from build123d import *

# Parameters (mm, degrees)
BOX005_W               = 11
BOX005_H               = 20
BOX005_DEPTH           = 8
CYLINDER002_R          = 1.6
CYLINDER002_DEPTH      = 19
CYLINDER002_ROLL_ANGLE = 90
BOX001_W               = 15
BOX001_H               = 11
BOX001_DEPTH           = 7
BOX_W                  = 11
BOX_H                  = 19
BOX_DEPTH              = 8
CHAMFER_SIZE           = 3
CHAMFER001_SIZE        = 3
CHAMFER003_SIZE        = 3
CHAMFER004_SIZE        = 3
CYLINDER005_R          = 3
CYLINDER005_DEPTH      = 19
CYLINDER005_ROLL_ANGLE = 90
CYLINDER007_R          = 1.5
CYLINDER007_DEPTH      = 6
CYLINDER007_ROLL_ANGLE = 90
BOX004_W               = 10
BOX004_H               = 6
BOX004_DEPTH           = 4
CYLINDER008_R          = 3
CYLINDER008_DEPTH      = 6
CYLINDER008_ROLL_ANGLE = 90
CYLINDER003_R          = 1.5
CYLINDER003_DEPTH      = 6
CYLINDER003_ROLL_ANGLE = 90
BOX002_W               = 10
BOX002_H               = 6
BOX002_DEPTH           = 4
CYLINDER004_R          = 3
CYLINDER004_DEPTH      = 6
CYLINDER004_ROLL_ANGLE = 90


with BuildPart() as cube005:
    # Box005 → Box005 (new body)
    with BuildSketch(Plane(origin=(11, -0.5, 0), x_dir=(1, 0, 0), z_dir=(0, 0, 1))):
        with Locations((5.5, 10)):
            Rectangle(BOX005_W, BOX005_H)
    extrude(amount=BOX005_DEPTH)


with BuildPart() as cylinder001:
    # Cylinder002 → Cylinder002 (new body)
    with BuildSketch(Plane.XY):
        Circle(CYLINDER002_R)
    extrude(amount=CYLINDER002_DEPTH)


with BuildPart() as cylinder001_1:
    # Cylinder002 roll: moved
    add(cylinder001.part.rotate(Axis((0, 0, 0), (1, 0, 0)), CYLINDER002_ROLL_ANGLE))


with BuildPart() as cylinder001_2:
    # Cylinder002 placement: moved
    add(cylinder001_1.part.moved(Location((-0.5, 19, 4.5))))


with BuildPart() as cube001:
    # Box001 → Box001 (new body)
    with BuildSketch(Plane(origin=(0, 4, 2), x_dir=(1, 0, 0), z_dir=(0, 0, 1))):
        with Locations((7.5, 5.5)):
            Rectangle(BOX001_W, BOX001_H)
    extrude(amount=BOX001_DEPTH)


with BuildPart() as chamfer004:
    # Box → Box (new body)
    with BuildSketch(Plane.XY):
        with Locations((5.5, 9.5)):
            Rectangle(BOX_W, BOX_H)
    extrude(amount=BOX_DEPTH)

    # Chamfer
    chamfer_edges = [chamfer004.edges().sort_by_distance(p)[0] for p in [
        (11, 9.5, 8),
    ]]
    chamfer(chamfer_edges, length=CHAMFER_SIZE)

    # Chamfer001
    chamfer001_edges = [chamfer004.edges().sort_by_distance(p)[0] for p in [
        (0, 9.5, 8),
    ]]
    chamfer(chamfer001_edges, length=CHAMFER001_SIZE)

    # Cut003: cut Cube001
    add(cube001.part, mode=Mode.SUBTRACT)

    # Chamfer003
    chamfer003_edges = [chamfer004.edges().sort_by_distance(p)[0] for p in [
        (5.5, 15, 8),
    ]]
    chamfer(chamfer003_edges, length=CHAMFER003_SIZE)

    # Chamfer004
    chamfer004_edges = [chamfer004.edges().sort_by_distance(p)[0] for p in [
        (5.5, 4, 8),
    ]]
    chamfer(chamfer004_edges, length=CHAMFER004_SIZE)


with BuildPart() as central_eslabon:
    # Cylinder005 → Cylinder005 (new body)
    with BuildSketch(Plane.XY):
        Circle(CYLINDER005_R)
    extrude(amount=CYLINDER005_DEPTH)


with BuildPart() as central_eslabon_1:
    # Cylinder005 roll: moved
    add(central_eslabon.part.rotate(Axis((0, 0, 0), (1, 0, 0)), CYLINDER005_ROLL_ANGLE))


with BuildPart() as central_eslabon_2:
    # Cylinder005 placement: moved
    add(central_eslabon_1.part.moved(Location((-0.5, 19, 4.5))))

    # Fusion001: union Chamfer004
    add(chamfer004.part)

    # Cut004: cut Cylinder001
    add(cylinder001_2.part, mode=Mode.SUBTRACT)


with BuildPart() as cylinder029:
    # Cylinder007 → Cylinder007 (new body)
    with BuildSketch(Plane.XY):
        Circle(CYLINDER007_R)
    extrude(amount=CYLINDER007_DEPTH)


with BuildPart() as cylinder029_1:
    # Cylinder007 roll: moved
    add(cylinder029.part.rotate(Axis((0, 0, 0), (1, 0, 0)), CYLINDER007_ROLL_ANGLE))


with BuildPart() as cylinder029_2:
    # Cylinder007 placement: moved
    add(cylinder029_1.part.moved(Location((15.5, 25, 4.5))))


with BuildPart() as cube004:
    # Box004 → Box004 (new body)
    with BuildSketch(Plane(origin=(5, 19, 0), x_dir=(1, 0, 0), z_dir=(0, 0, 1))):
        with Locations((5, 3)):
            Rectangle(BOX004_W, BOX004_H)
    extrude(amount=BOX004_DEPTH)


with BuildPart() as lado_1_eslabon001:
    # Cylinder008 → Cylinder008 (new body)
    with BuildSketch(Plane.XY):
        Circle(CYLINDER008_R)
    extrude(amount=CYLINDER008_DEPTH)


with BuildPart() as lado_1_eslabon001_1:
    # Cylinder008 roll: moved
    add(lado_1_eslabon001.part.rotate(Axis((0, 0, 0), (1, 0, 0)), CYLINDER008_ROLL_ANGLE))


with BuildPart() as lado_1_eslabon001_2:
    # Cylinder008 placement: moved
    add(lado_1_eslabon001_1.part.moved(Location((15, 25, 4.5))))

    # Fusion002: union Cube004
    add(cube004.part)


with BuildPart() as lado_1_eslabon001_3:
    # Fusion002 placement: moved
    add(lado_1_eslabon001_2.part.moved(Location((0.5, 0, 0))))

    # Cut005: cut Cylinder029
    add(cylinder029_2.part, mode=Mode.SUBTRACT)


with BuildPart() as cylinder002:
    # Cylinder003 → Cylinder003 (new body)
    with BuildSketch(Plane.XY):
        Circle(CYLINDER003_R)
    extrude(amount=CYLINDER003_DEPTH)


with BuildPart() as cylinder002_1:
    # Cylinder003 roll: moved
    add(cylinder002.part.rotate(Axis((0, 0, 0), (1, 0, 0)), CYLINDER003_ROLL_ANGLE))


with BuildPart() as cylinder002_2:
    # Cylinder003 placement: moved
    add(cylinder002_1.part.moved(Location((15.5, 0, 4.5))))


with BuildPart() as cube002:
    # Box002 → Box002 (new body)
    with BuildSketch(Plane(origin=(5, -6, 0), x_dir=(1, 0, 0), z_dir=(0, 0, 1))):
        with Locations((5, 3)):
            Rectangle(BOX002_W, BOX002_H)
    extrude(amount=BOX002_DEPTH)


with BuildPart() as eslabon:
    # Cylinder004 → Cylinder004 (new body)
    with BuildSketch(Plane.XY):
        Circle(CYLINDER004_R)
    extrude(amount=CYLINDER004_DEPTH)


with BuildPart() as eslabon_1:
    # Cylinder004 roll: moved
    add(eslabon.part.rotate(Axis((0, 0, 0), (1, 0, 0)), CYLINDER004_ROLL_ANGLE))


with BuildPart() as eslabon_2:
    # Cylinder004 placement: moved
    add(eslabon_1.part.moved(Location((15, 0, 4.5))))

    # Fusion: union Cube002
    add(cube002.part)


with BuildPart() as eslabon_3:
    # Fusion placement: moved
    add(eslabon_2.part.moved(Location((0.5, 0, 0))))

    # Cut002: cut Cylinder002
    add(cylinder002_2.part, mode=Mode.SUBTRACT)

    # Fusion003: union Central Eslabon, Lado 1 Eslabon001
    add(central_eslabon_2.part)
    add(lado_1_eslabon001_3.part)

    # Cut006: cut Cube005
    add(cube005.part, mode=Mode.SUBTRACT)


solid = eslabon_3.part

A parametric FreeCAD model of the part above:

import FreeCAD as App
import Part
import Sketcher

V = App.Vector


def edges_at(feature, points):
    """Names of the edges that pass closest to the given points."""
    edges = feature.Shape.Edges
    near = lambda p: min(range(len(edges)), key=lambda i: edges[i].distToShape(Part.Vertex(*p))[0])
    return sorted({f"Edge{near(p) + 1}" for p in points})

doc = App.newDocument("Part")
body = doc.addObject("PartDesign::Body", "Body")

# Sketch on XY plane
sketch1 = body.newObject("Sketcher::SketchObject", "Sketch")
sketch1.AttachmentSupport = (doc.getObject("XY_Plane"), [""])
sketch1.MapMode = "FlatFace"
sketch1.addGeometry(Part.LineSegment(V(11, 20, 0), V(11, 0, 0)), False)
sketch1.addGeometry(Part.LineSegment(V(11, 0, 0), V(22, 0, 0)), False)
sketch1.addGeometry(Part.LineSegment(V(22, 0, 0), V(22, 20, 0)), False)
sketch1.addGeometry(Part.LineSegment(V(22, 20, 0), V(11, 20, 0)), False)
sketch1.addConstraint(Sketcher.Constraint("Coincident", 0, 2, 1, 1))
sketch1.addConstraint(Sketcher.Constraint("Coincident", 1, 2, 2, 1))
sketch1.addConstraint(Sketcher.Constraint("Coincident", 2, 2, 3, 1))
sketch1.addConstraint(Sketcher.Constraint("Coincident", 3, 2, 0, 1))
sketch1.addConstraint(Sketcher.Constraint("Vertical", 0))
sketch1.addConstraint(Sketcher.Constraint("Horizontal", 1))
sketch1.addConstraint(Sketcher.Constraint("Vertical", 2))
sketch1.addConstraint(Sketcher.Constraint("Horizontal", 3))
sketch1.addConstraint(Sketcher.Constraint("DistanceX", 1, 1, 1, 2, 11.0))
sketch1.addConstraint(Sketcher.Constraint("DistanceY", 0, 2, 0, 1, 20.0))
sketch1.addConstraint(Sketcher.Constraint("DistanceX", -1, 1, 0, 2, 11.0))
sketch1.addConstraint(Sketcher.Constraint("DistanceY", 0, 2, -1, 1, 0.5))
pad1 = body.newObject("PartDesign::Pad", "Pad")
pad1.Profile = sketch1
pad1.Length = 8
body2 = doc.addObject("PartDesign::Body", "Body001")

# Sketch on XY plane
sketch2 = body2.newObject("Sketcher::SketchObject", "Sketch001")
sketch2.AttachmentSupport = (doc.getObject("XY_Plane001"), [""])
sketch2.MapMode = "FlatFace"
sketch2.addGeometry(Part.Circle(V(0, 0, 0), V(0, 0, 1), 1.6), False)
sketch2.addConstraint(Sketcher.Constraint("Coincident", 0, 3, -1, 1))
sketch2.addConstraint(Sketcher.Constraint("Diameter", 0, 3.2))
pad2 = body2.newObject("PartDesign::Pad", "Pad001")
pad2.Profile = sketch2
pad2.Length = 19
body3 = doc.addObject("PartDesign::Body", "Body002")
doc.recompute()

body2.Placement = App.Placement(V(0, 0, 0), App.Rotation(V(1, 0, 0), 90))
boolean = body3.newObject("PartDesign::Boolean", "Boolean")
boolean.Type = "Fuse"
boolean.addObjects([body2])
body4 = doc.addObject("PartDesign::Body", "Body003")
doc.recompute()

body3.Placement = App.Placement(V(-0.5, 19, 4.5), App.Rotation(V(0, 0, 1), 0))
boolean2 = body4.newObject("PartDesign::Boolean", "Boolean001")
boolean2.Type = "Fuse"
boolean2.addObjects([body3])
body5 = doc.addObject("PartDesign::Body", "Body004")

# Sketch on XY plane
sketch3 = body5.newObject("Sketcher::SketchObject", "Sketch002")
sketch3.AttachmentSupport = (doc.getObject("XY_Plane004"), [""])
sketch3.MapMode = "FlatFace"
sketch3.AttachmentOffset = App.Placement(V(0, 0, 2), App.Rotation())
sketch3.addGeometry(Part.LineSegment(V(0, 15, 0), V(0, 4, 0)), False)
sketch3.addGeometry(Part.LineSegment(V(0, 4, 0), V(15, 4, 0)), False)
sketch3.addGeometry(Part.LineSegment(V(15, 4, 0), V(15, 15, 0)), False)
sketch3.addGeometry(Part.LineSegment(V(15, 15, 0), V(0, 15, 0)), False)
sketch3.addConstraint(Sketcher.Constraint("Coincident", 0, 2, 1, 1))
sketch3.addConstraint(Sketcher.Constraint("Coincident", 1, 2, 2, 1))
sketch3.addConstraint(Sketcher.Constraint("Coincident", 2, 2, 3, 1))
sketch3.addConstraint(Sketcher.Constraint("Coincident", 3, 2, 0, 1))
sketch3.addConstraint(Sketcher.Constraint("Vertical", 0))
sketch3.addConstraint(Sketcher.Constraint("Horizontal", 1))
sketch3.addConstraint(Sketcher.Constraint("Vertical", 2))
sketch3.addConstraint(Sketcher.Constraint("Horizontal", 3))
sketch3.addConstraint(Sketcher.Constraint("PointOnObject", 0, 2, -2))
sketch3.addConstraint(Sketcher.Constraint("DistanceX", 1, 1, 1, 2, 15.0))
sketch3.addConstraint(Sketcher.Constraint("DistanceY", 0, 2, 0, 1, 11.0))
sketch3.addConstraint(Sketcher.Constraint("DistanceY", -1, 1, 0, 2, 4.0))
pad3 = body5.newObject("PartDesign::Pad", "Pad002")
pad3.Profile = sketch3
pad3.Length = 7
body6 = doc.addObject("PartDesign::Body", "Body005")

# Sketch on XY plane
sketch4 = body6.newObject("Sketcher::SketchObject", "Sketch003")
sketch4.AttachmentSupport = (doc.getObject("XY_Plane005"), [""])
sketch4.MapMode = "FlatFace"
sketch4.addGeometry(Part.LineSegment(V(0, 19, 0), V(0, 0, 0)), False)
sketch4.addGeometry(Part.LineSegment(V(0, 0, 0), V(11, 0, 0)), False)
sketch4.addGeometry(Part.LineSegment(V(11, 0, 0), V(11, 19, 0)), False)
sketch4.addGeometry(Part.LineSegment(V(11, 19, 0), V(0, 19, 0)), False)
sketch4.addConstraint(Sketcher.Constraint("Coincident", 0, 2, 1, 1))
sketch4.addConstraint(Sketcher.Constraint("Coincident", 1, 2, 2, 1))
sketch4.addConstraint(Sketcher.Constraint("Coincident", 2, 2, 3, 1))
sketch4.addConstraint(Sketcher.Constraint("Coincident", 3, 2, 0, 1))
sketch4.addConstraint(Sketcher.Constraint("Vertical", 0))
sketch4.addConstraint(Sketcher.Constraint("Horizontal", 1))
sketch4.addConstraint(Sketcher.Constraint("Vertical", 2))
sketch4.addConstraint(Sketcher.Constraint("Horizontal", 3))
sketch4.addConstraint(Sketcher.Constraint("Coincident", 0, 2, -1, 1))
sketch4.addConstraint(Sketcher.Constraint("DistanceX", 1, 1, 1, 2, 11.0))
sketch4.addConstraint(Sketcher.Constraint("DistanceY", 0, 2, 0, 1, 19.0))
pad4 = body6.newObject("PartDesign::Pad", "Pad003")
pad4.Profile = sketch4
pad4.Length = 8
doc.recompute()

chamfer = body6.newObject("PartDesign::Chamfer", "Chamfer")
chamfer.Base = (pad4, edges_at(pad4, [(11, 9.5, 8)]))
chamfer.Size = 3
doc.recompute()

chamfer2 = body6.newObject("PartDesign::Chamfer", "Chamfer001")
chamfer2.Base = (chamfer, edges_at(chamfer, [(0, 9.5, 8)]))
chamfer2.Size = 3
doc.recompute()

boolean3 = body6.newObject("PartDesign::Boolean", "Boolean002")
boolean3.Type = "Cut"
boolean3.addObjects([body5])
doc.recompute()

chamfer3 = body6.newObject("PartDesign::Chamfer", "Chamfer002")
chamfer3.Base = (boolean3, edges_at(boolean3, [(5.5, 15, 8)]))
chamfer3.Size = 3
doc.recompute()

chamfer4 = body6.newObject("PartDesign::Chamfer", "Chamfer003")
chamfer4.Base = (chamfer3, edges_at(chamfer3, [(5.5, 4, 8)]))
chamfer4.Size = 3
body7 = doc.addObject("PartDesign::Body", "Body006")

# Sketch on XY plane
sketch5 = body7.newObject("Sketcher::SketchObject", "Sketch004")
sketch5.AttachmentSupport = (doc.getObject("XY_Plane006"), [""])
sketch5.MapMode = "FlatFace"
sketch5.addGeometry(Part.Circle(V(0, 0, 0), V(0, 0, 1), 3), False)
sketch5.addConstraint(Sketcher.Constraint("Coincident", 0, 3, -1, 1))
sketch5.addConstraint(Sketcher.Constraint("Diameter", 0, 6.0))
pad5 = body7.newObject("PartDesign::Pad", "Pad004")
pad5.Profile = sketch5
pad5.Length = 19
body8 = doc.addObject("PartDesign::Body", "Body007")
doc.recompute()

body7.Placement = App.Placement(V(0, 0, 0), App.Rotation(V(1, 0, 0), 90))
boolean4 = body8.newObject("PartDesign::Boolean", "Boolean003")
boolean4.Type = "Fuse"
boolean4.addObjects([body7])
body9 = doc.addObject("PartDesign::Body", "Body008")
doc.recompute()

body8.Placement = App.Placement(V(-0.5, 19, 4.5), App.Rotation(V(0, 0, 1), 0))
boolean5 = body9.newObject("PartDesign::Boolean", "Boolean004")
boolean5.Type = "Fuse"
boolean5.addObjects([body8])
doc.recompute()

boolean6 = body9.newObject("PartDesign::Boolean", "Boolean005")
boolean6.Type = "Fuse"
boolean6.addObjects([body6])
doc.recompute()

boolean7 = body9.newObject("PartDesign::Boolean", "Boolean006")
boolean7.Type = "Cut"
boolean7.addObjects([body4])
body10 = doc.addObject("PartDesign::Body", "Body009")

# Sketch on XY plane
sketch6 = body10.newObject("Sketcher::SketchObject", "Sketch005")
sketch6.AttachmentSupport = (doc.getObject("XY_Plane009"), [""])
sketch6.MapMode = "FlatFace"
sketch6.addGeometry(Part.Circle(V(0, 0, 0), V(0, 0, 1), 1.5), False)
sketch6.addConstraint(Sketcher.Constraint("Coincident", 0, 3, -1, 1))
sketch6.addConstraint(Sketcher.Constraint("Diameter", 0, 3.0))
pad6 = body10.newObject("PartDesign::Pad", "Pad005")
pad6.Profile = sketch6
pad6.Length = 6
body11 = doc.addObject("PartDesign::Body", "Body010")
doc.recompute()

body10.Placement = App.Placement(V(0, 0, 0), App.Rotation(V(1, 0, 0), 90))
boolean8 = body11.newObject("PartDesign::Boolean", "Boolean007")
boolean8.Type = "Fuse"
boolean8.addObjects([body10])
body12 = doc.addObject("PartDesign::Body", "Body011")
doc.recompute()

body11.Placement = App.Placement(V(15.5, 25, 4.5), App.Rotation(V(0, 0, 1), 0))
boolean9 = body12.newObject("PartDesign::Boolean", "Boolean008")
boolean9.Type = "Fuse"
boolean9.addObjects([body11])
body13 = doc.addObject("PartDesign::Body", "Body012")

# Sketch on XY plane
sketch7 = body13.newObject("Sketcher::SketchObject", "Sketch006")
sketch7.AttachmentSupport = (doc.getObject("XY_Plane012"), [""])
sketch7.MapMode = "FlatFace"
sketch7.addGeometry(Part.LineSegment(V(5, 25, 0), V(5, 19, 0)), False)
sketch7.addGeometry(Part.LineSegment(V(5, 19, 0), V(15, 19, 0)), False)
sketch7.addGeometry(Part.LineSegment(V(15, 19, 0), V(15, 25, 0)), False)
sketch7.addGeometry(Part.LineSegment(V(15, 25, 0), V(5, 25, 0)), False)
sketch7.addConstraint(Sketcher.Constraint("Coincident", 0, 2, 1, 1))
sketch7.addConstraint(Sketcher.Constraint("Coincident", 1, 2, 2, 1))
sketch7.addConstraint(Sketcher.Constraint("Coincident", 2, 2, 3, 1))
sketch7.addConstraint(Sketcher.Constraint("Coincident", 3, 2, 0, 1))
sketch7.addConstraint(Sketcher.Constraint("Vertical", 0))
sketch7.addConstraint(Sketcher.Constraint("Horizontal", 1))
sketch7.addConstraint(Sketcher.Constraint("Vertical", 2))
sketch7.addConstraint(Sketcher.Constraint("Horizontal", 3))
sketch7.addConstraint(Sketcher.Constraint("DistanceX", 1, 1, 1, 2, 10.0))
sketch7.addConstraint(Sketcher.Constraint("DistanceY", 0, 2, 0, 1, 6.0))
sketch7.addConstraint(Sketcher.Constraint("DistanceX", -1, 1, 0, 2, 5.0))
sketch7.addConstraint(Sketcher.Constraint("DistanceY", -1, 1, 0, 2, 19.0))
pad7 = body13.newObject("PartDesign::Pad", "Pad006")
pad7.Profile = sketch7
pad7.Length = 4
body14 = doc.addObject("PartDesign::Body", "Body013")

# Sketch on XY plane
sketch8 = body14.newObject("Sketcher::SketchObject", "Sketch007")
sketch8.AttachmentSupport = (doc.getObject("XY_Plane013"), [""])
sketch8.MapMode = "FlatFace"
sketch8.addGeometry(Part.Circle(V(0, 0, 0), V(0, 0, 1), 3), False)
sketch8.addConstraint(Sketcher.Constraint("Coincident", 0, 3, -1, 1))
sketch8.addConstraint(Sketcher.Constraint("Diameter", 0, 6.0))
pad8 = body14.newObject("PartDesign::Pad", "Pad007")
pad8.Profile = sketch8
pad8.Length = 6
body15 = doc.addObject("PartDesign::Body", "Body014")
doc.recompute()

body14.Placement = App.Placement(V(0, 0, 0), App.Rotation(V(1, 0, 0), 90))
boolean10 = body15.newObject("PartDesign::Boolean", "Boolean009")
boolean10.Type = "Fuse"
boolean10.addObjects([body14])
body16 = doc.addObject("PartDesign::Body", "Body015")
doc.recompute()

body15.Placement = App.Placement(V(15, 25, 4.5), App.Rotation(V(0, 0, 1), 0))
boolean11 = body16.newObject("PartDesign::Boolean", "Boolean010")
boolean11.Type = "Fuse"
boolean11.addObjects([body15])
doc.recompute()

boolean12 = body16.newObject("PartDesign::Boolean", "Boolean011")
boolean12.Type = "Fuse"
boolean12.addObjects([body13])
body17 = doc.addObject("PartDesign::Body", "Body016")
doc.recompute()

body16.Placement = App.Placement(V(0.5, 0, 0), App.Rotation(V(0, 0, 1), 0))
boolean13 = body17.newObject("PartDesign::Boolean", "Boolean012")
boolean13.Type = "Fuse"
boolean13.addObjects([body16])
doc.recompute()

boolean14 = body17.newObject("PartDesign::Boolean", "Boolean013")
boolean14.Type = "Cut"
boolean14.addObjects([body12])
body18 = doc.addObject("PartDesign::Body", "Body017")

# Sketch on XY plane
sketch9 = body18.newObject("Sketcher::SketchObject", "Sketch008")
sketch9.AttachmentSupport = (doc.getObject("XY_Plane017"), [""])
sketch9.MapMode = "FlatFace"
sketch9.addGeometry(Part.Circle(V(0, 0, 0), V(0, 0, 1), 1.5), False)
sketch9.addConstraint(Sketcher.Constraint("Coincident", 0, 3, -1, 1))
sketch9.addConstraint(Sketcher.Constraint("Diameter", 0, 3.0))
pad9 = body18.newObject("PartDesign::Pad", "Pad008")
pad9.Profile = sketch9
pad9.Length = 6
body19 = doc.addObject("PartDesign::Body", "Body018")
doc.recompute()

body18.Placement = App.Placement(V(0, 0, 0), App.Rotation(V(1, 0, 0), 90))
boolean15 = body19.newObject("PartDesign::Boolean", "Boolean014")
boolean15.Type = "Fuse"
boolean15.addObjects([body18])
body20 = doc.addObject("PartDesign::Body", "Body019")
doc.recompute()

body19.Placement = App.Placement(V(15.5, 0, 4.5), App.Rotation(V(0, 0, 1), 0))
boolean16 = body20.newObject("PartDesign::Boolean", "Boolean015")
boolean16.Type = "Fuse"
boolean16.addObjects([body19])
body21 = doc.addObject("PartDesign::Body", "Body020")

# Sketch on XY plane
sketch10 = body21.newObject("Sketcher::SketchObject", "Sketch009")
sketch10.AttachmentSupport = (doc.getObject("XY_Plane020"), [""])
sketch10.MapMode = "FlatFace"
sketch10.addGeometry(Part.LineSegment(V(5, 0, 0), V(5, -6, 0)), False)
sketch10.addGeometry(Part.LineSegment(V(5, -6, 0), V(15, -6, 0)), False)
sketch10.addGeometry(Part.LineSegment(V(15, -6, 0), V(15, 0, 0)), False)
sketch10.addGeometry(Part.LineSegment(V(15, 0, 0), V(5, 0, 0)), False)
sketch10.addConstraint(Sketcher.Constraint("Coincident", 0, 2, 1, 1))
sketch10.addConstraint(Sketcher.Constraint("Coincident", 1, 2, 2, 1))
sketch10.addConstraint(Sketcher.Constraint("Coincident", 2, 2, 3, 1))
sketch10.addConstraint(Sketcher.Constraint("Coincident", 3, 2, 0, 1))
sketch10.addConstraint(Sketcher.Constraint("Vertical", 0))
sketch10.addConstraint(Sketcher.Constraint("Horizontal", 1))
sketch10.addConstraint(Sketcher.Constraint("Vertical", 2))
sketch10.addConstraint(Sketcher.Constraint("Horizontal", 3))
sketch10.addConstraint(Sketcher.Constraint("PointOnObject", 2, 2, -1))
sketch10.addConstraint(Sketcher.Constraint("DistanceX", 1, 1, 1, 2, 10.0))
sketch10.addConstraint(Sketcher.Constraint("DistanceY", 0, 2, 0, 1, 6.0))
sketch10.addConstraint(Sketcher.Constraint("DistanceX", -1, 1, 0, 2, 5.0))
pad10 = body21.newObject("PartDesign::Pad", "Pad009")
pad10.Profile = sketch10
pad10.Length = 4
body22 = doc.addObject("PartDesign::Body", "Body021")

# Sketch on XY plane
sketch11 = body22.newObject("Sketcher::SketchObject", "Sketch010")
sketch11.AttachmentSupport = (doc.getObject("XY_Plane021"), [""])
sketch11.MapMode = "FlatFace"
sketch11.addGeometry(Part.Circle(V(0, 0, 0), V(0, 0, 1), 3), False)
sketch11.addConstraint(Sketcher.Constraint("Coincident", 0, 3, -1, 1))
sketch11.addConstraint(Sketcher.Constraint("Diameter", 0, 6.0))
pad11 = body22.newObject("PartDesign::Pad", "Pad010")
pad11.Profile = sketch11
pad11.Length = 6
body23 = doc.addObject("PartDesign::Body", "Body022")
doc.recompute()

body22.Placement = App.Placement(V(0, 0, 0), App.Rotation(V(1, 0, 0), 90))
boolean17 = body23.newObject("PartDesign::Boolean", "Boolean016")
boolean17.Type = "Fuse"
boolean17.addObjects([body22])
body24 = doc.addObject("PartDesign::Body", "Body023")
doc.recompute()

body23.Placement = App.Placement(V(15, 0, 4.5), App.Rotation(V(0, 0, 1), 0))
boolean18 = body24.newObject("PartDesign::Boolean", "Boolean017")
boolean18.Type = "Fuse"
boolean18.addObjects([body23])
doc.recompute()

boolean19 = body24.newObject("PartDesign::Boolean", "Boolean018")
boolean19.Type = "Fuse"
boolean19.addObjects([body21])
body25 = doc.addObject("PartDesign::Body", "Body024")
doc.recompute()

body24.Placement = App.Placement(V(0.5, 0, 0), App.Rotation(V(0, 0, 1), 0))
boolean20 = body25.newObject("PartDesign::Boolean", "Boolean019")
boolean20.Type = "Fuse"
boolean20.addObjects([body24])
doc.recompute()

boolean21 = body25.newObject("PartDesign::Boolean", "Boolean020")
boolean21.Type = "Cut"
boolean21.addObjects([body20])
doc.recompute()

boolean22 = body25.newObject("PartDesign::Boolean", "Boolean021")
boolean22.Type = "Fuse"
boolean22.addObjects([body9])
doc.recompute()

boolean23 = body25.newObject("PartDesign::Boolean", "Boolean022")
boolean23.Type = "Fuse"
boolean23.addObjects([body17])
doc.recompute()

boolean24 = body25.newObject("PartDesign::Boolean", "Boolean023")
boolean24.Type = "Cut"
boolean24.addObjects([body])

doc.recompute()
